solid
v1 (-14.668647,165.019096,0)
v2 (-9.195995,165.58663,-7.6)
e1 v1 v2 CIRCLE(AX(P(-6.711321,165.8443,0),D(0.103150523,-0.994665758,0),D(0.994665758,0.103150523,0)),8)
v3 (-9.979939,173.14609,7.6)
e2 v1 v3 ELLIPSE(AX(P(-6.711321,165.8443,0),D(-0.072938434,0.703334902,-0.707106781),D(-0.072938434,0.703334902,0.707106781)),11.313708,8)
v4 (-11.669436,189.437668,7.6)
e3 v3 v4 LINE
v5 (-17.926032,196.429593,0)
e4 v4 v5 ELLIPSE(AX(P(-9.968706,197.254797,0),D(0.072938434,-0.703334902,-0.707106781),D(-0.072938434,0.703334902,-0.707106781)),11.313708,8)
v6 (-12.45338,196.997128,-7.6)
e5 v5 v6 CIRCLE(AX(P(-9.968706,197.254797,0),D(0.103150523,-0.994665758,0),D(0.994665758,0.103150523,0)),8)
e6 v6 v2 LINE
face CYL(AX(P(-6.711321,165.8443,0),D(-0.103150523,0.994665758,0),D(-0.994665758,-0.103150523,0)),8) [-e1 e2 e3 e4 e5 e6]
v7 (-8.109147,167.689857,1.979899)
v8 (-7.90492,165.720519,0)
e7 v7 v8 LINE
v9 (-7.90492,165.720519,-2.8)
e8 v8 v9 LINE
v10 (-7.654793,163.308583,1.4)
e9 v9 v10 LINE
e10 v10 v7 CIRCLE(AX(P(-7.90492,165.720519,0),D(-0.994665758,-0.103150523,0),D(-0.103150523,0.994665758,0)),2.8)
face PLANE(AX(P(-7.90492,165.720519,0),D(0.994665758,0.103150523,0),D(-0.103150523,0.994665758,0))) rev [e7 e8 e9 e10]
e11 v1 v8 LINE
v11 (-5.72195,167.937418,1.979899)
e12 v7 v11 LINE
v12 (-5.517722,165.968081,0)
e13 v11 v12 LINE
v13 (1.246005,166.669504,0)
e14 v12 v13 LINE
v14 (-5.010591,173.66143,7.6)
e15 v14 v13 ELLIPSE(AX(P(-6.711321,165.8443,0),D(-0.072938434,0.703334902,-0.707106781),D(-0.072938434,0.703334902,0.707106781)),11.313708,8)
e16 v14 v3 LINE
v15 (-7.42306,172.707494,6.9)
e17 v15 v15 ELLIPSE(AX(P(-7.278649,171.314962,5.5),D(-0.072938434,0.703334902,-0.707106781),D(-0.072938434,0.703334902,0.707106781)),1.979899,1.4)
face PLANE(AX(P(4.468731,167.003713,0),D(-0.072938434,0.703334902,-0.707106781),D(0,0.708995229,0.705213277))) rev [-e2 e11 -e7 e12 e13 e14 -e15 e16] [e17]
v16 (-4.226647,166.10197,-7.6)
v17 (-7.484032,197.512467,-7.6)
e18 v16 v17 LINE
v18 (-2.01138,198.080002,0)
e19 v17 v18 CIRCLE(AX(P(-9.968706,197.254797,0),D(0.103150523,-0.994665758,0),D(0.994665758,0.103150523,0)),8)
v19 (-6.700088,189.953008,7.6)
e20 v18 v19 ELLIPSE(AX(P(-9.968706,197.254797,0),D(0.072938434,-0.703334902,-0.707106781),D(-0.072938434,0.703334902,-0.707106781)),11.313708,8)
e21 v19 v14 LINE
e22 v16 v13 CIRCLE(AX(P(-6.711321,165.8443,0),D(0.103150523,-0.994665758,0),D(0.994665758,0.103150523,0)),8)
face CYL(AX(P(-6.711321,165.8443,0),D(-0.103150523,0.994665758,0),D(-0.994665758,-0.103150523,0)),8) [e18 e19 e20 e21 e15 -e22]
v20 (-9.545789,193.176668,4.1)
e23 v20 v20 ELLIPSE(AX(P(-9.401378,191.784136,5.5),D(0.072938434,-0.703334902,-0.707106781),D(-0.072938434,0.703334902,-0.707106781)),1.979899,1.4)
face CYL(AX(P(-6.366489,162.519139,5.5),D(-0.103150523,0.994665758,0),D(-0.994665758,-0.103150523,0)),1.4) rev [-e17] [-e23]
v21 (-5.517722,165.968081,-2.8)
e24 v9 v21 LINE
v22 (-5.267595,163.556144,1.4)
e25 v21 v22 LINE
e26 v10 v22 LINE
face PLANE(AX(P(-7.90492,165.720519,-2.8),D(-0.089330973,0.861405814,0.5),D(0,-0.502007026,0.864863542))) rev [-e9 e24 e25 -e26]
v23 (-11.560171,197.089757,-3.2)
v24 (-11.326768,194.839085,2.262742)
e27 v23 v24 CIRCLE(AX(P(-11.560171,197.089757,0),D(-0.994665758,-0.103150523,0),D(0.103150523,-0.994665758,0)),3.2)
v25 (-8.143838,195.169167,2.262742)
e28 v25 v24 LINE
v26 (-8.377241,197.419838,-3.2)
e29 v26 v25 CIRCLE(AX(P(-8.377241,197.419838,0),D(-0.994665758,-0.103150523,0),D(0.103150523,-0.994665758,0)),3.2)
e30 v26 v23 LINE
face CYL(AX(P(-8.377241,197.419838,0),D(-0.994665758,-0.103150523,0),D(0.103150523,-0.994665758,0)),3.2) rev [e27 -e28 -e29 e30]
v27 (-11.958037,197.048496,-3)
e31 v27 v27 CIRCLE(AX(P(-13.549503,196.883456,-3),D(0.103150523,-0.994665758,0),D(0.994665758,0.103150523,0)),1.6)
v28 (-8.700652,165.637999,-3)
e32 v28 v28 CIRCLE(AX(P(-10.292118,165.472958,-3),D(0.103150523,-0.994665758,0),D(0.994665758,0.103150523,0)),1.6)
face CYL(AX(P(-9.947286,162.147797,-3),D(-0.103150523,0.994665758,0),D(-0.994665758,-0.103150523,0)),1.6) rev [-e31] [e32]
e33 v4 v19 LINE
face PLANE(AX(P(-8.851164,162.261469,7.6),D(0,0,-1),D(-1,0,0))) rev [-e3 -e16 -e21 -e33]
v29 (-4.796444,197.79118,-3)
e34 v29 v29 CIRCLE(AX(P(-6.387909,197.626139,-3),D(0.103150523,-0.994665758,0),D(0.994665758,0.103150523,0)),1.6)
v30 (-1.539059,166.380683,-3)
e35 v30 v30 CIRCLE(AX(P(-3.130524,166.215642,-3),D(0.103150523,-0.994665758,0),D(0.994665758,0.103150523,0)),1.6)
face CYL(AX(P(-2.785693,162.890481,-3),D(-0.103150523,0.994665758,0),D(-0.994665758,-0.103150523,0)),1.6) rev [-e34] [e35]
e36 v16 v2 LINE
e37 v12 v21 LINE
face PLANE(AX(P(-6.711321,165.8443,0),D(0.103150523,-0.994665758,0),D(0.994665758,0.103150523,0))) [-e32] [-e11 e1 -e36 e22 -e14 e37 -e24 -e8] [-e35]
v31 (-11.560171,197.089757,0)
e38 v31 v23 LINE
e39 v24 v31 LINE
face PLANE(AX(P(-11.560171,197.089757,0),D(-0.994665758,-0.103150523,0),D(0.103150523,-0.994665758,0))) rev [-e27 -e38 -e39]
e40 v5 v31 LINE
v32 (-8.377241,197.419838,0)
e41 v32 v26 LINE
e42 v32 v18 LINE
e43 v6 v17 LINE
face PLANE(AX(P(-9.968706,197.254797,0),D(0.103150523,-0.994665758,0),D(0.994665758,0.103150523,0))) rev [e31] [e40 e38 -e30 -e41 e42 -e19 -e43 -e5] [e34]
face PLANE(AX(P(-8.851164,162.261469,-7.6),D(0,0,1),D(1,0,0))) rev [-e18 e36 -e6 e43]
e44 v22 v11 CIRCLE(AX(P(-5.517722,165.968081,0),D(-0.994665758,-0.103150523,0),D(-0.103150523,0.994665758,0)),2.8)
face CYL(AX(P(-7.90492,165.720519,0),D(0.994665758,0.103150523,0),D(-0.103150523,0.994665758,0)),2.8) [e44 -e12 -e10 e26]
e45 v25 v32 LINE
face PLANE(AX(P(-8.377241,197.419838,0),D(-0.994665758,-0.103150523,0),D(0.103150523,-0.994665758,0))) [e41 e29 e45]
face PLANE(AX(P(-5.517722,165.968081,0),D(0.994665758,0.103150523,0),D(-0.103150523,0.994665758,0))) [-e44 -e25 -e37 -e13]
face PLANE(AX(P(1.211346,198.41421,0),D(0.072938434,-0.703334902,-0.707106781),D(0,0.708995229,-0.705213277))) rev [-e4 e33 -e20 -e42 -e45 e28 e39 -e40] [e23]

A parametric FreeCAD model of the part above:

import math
import FreeCAD as App
import Part
import Sketcher

V = App.Vector
Q = App.Units.Quantity

doc = App.newDocument("Part")
body = doc.addObject("PartDesign::Body", "Body")

sketch1 = doc.addObject("Sketcher::SketchObject", "Sketch")
body.addObject(sketch1)
sketch1.Placement = App.Placement(V(-20.344467, 196.178793, 0), App.Rotation(V(-0.994665758, -0.103150523, 0), V(0, 0, -1.000000001), V(0.103150523, -0.994665758, 0), "ZXY"))
sketch1.addGeometry(Part.Circle(V(-10, 0, 0), V(0, 0, 1), 8), False)
sketch1.addConstraint([
    Sketcher.Constraint("PointOnObject", 0, 3, -1),
    Sketcher.Constraint("Diameter", 0, Q("16 mm")),
    Sketcher.Constraint("DistanceX", 0, 3, -1, 1, Q("10.431405 mm")),
])
pad1 = doc.addObject("PartDesign::Pad", "Pad")
body.addObject(pad1)
pad1.Profile = sketch1
pad1.Length = 31.578947

sketch2 = doc.addObject("Sketcher::SketchObject", "Sketch001")
body.addObject(sketch2)
sketch2.Placement = App.Placement(V(10.375762, 1.076005, 0), App.Rotation(V(0.103150523, -0.994665758, 0), V(0, 0, 1.000000001), V(-0.994665758, -0.103150523, 0), "ZXY"))
sketch2.addGeometry([
    Part.LineSegment(V(-197, 0, 0), V(-189, 8, 0)),
    Part.LineSegment(V(-189, 8, 0), V(-197, 8, 0)),
    Part.LineSegment(V(-197, 8, 0), V(-197, 0, 0)),
    Part.LineSegment(V(-166, 8, 0), V(-174, 8, 0)),
    Part.LineSegment(V(-174, 8, 0), V(-166, 0, 0)),
    Part.LineSegment(V(-166, 0, 0), V(-166, 8, 0)),
], False)
sketch2.addConstraint([
    Sketcher.Constraint("Coincident", 0, 2, 1, 1),
    Sketcher.Constraint("Coincident", 1, 2, 2, 1),
    Sketcher.Constraint("Coincident", 2, 2, 0, 1),
    Sketcher.Constraint("Coincident", 3, 2, 4, 1),
    Sketcher.Constraint("Coincident", 4, 2, 5, 1),
    Sketcher.Constraint("Coincident", 5, 2, 3, 1),
    Sketcher.Constraint("Horizontal", 1),
    Sketcher.Constraint("Vertical", 2),
    Sketcher.Constraint("Horizontal", 3),
    Sketcher.Constraint("Vertical", 5),
    Sketcher.Constraint("PointOnObject", 2, 2, -1),
    Sketcher.Constraint("PointOnObject", 4, 2, -1),
    Sketcher.Constraint("Perpendicular", 0, 4),
    Sketcher.Constraint("Horizontal", 1, 2, 3, 2),
    Sketcher.Constraint("Equal", 1, 3),
    Sketcher.Constraint("DistanceX", 1, 2, 1, 1, Q("8 mm")),
    Sketcher.Constraint("DistanceX", 0, 2, -1, 1, Q("189.23087 mm")),
    Sketcher.Constraint("DistanceX", 3, 2, -1, 1, Q("173.651923 mm")),
])
pocket1 = doc.addObject("PartDesign::Pocket", "Pocket")
body.addObject(pocket1)
pocket1.Profile = sketch2
pocket1.Type = "ThroughAll"
pocket1.Midplane = True

sketch3 = doc.addObject("Sketcher::SketchObject", "Sketch002")
body.addObject(sketch3)
sketch3.Placement = App.Placement(V(10.375762, 1.076005, 0), App.Rotation(V(0.103150523, -0.994665758, 0), V(0, 0, 1.000000001), V(-0.994665758, -0.103150523, 0), "ZXY"))
sketch3.addGeometry([
    Part.LineSegment(V(-165.7, -2.8, 0), V(-163.2, 1.4, 0)),
    Part.ArcOfCircle(Part.Circle(V(-165.7, 0, 0), V(0, 0, 1), 2.8), math.radians(30), math.radians(135)),
    Part.LineSegment(V(-167.6, 2, 0), V(-165.7, 0, 0)),
    Part.LineSegment(V(-165.7, 0, 0), V(-165.7, -2.8, 0)),
], False)
sketch3.addConstraint([
    Sketcher.Constraint("Coincident", 0, 2, 1, 1),
    Sketcher.Constraint("Coincident", 1, 2, 2, 1),
    Sketcher.Constraint("Coincident", 2, 2, 3, 1),
    Sketcher.Constraint("Coincident", 3, 2, 0, 1),
    Sketcher.Constraint("Vertical", 3),
    Sketcher.Constraint("Coincident", 2, 2, 1, 3),
    Sketcher.Constraint("PointOnObject", 1, 3, -1),
    Sketcher.Constraint("Radius", 1, Q("2.8 mm")),
    Sketcher.Constraint("Angle", 0, Q("60 deg")),
    Sketcher.Constraint("Angle", 2, Q("-45 deg")),
    Sketcher.Constraint("DistanceY", 3, 2, 3, 1, Q("2.8 mm")),
    Sketcher.Constraint("DistanceX", 0, 2, -1, 1, Q("163.227051 mm")),
])
pad2 = doc.addObject("PartDesign::Pad", "Pad001")
body.addObject(pad2)
pad2.Profile = sketch3
pad2.Length = 2.4
pad2.Midplane = True

sketch4 = doc.addObject("Sketcher::SketchObject", "Sketch003")
body.addObject(sketch4)
sketch4.Placement = App.Placement(V(10.375762, 1.076005, 0), App.Rotation(V(0.103150523, -0.994665758, 0), V(0, 0, 1.000000001), V(-0.994665758, -0.103150523, 0), "ZXY"))
sketch4.addGeometry([
    Part.LineSegment(V(-195, 2.3, 0), V(-197.2, 0, 0)),
    Part.LineSegment(V(-197.2, 0, 0), V(-197.2, -3.2, 0)),
    Part.ArcOfCircle(Part.Circle(V(-197.2, 0, 0), V(0, 0, 1), 3.2), math.radians(-90), math.radians(45)),
], False)
sketch4.addConstraint([
    Sketcher.Constraint("Coincident", 0, 2, 1, 1),
    Sketcher.Constraint("Coincident", 1, 2, 2, 1),
    Sketcher.Constraint("Coincident", 2, 2, 0, 1),
    Sketcher.Constraint("Vertical", 1),
    Sketcher.Constraint("Coincident", 0, 2, 2, 3),
    Sketcher.Constraint("PointOnObject", 2, 3, -1),
    Sketcher.Constraint("Radius", 2, Q("3.2 mm")),
    Sketcher.Constraint("Angle", 0, Q("-135 deg")),
    Sketcher.Constraint("DistanceX", 2, 3, -1, 1, Q("197.23087 mm")),
])
pocket2 = doc.addObject("PartDesign::Pocket", "Pocket001")
body.addObject(pocket2)
pocket2.Profile = sketch4
pocket2.Length = 3.2
pocket2.Midplane = True

sketch5 = doc.addObject("Sketcher::SketchObject", "Sketch004")
body.addObject(sketch5)
sketch5.Placement = App.Placement(V(-20.344467, 196.178793, 0), App.Rotation(V(0.994665758, 0.103150523, 0), V(0, 0, -1.000000001), V(-0.103150523, 0.994665758, 0), "ZXY"))
sketch5.addGeometry([
    Part.Circle(V(10.4, -5.5, 0), V(0, 0, 1), 1.4),
    Part.Circle(V(6.8, 3, 0), V(0, 0, 1), 1.6),
    Part.Circle(V(14, 3, 0), V(0, 0, 1), 1.6),
], False)
sketch5.addConstraint([
    Sketcher.Constraint("Equal", 1, 2),
    Sketcher.Constraint("Horizontal", 1, 3, 2, 3),
    Sketcher.Constraint("Diameter", 0, Q("2.8 mm")),
    Sketcher.Constraint("Diameter", 1, Q("3.2 mm")),
    Sketcher.Constraint("DistanceY", -1, 1, 1, 3, Q("3 mm")),
    Sketcher.Constraint("DistanceY", 0, 3, -1, 1, Q("5.5 mm")),
    Sketcher.Constraint("DistanceX", 1, 3, 0, 3, Q("3.6 mm")),
    Sketcher.Constraint("DistanceX", 1, 3, 2, 3, Q("7.2 mm")),
    Sketcher.Constraint("DistanceX", -1, 1, 0, 3, Q("10.431405 mm")),
])
pocket3 = doc.addObject("PartDesign::Pocket", "Pocket002")
body.addObject(pocket3)
pocket3.Profile = sketch5
pocket3.Type = "ThroughAll"
pocket3.Midplane = True

sketch6 = doc.addObject("Sketcher::SketchObject", "Sketch005")
body.addObject(sketch6)
sketch6.Placement = App.Placement(V(-20.344467, 196.178793, 0), App.Rotation(V(0.994665758, 0.103150523, 0), V(0, 0, -1.000000001), V(-0.103150523, 0.994665758, 0), "ZXY"))
sketch6.addGeometry([
    Part.LineSegment(V(7.9, 7.6, 0), V(12.9, 7.6, 0)),
    Part.ArcOfCircle(Part.Circle(V(10.4, 0, 0), V(0, 0, 1), 8), math.radians(72), math.radians(108)),
    Part.LineSegment(V(12.9, -7.6, 0), V(7.9, -7.6, 0)),
    Part.ArcOfCircle(Part.Circle(V(10.4, 0, 0), V(0, 0, 1), 8), math.radians(-108), math.radians(-72)),
], False)
sketch6.addConstraint([
    Sketcher.Constraint("Coincident", 0, 1, 1, 2),
    Sketcher.Constraint("Coincident", 1, 1, 0, 2),
    Sketcher.Constraint("Coincident", 2, 1, 3, 2),
    Sketcher.Constraint("Coincident", 3, 1, 2, 2),
    Sketcher.Constraint("Horizontal", 0),
    Sketcher.Constraint("Horizontal", 2),
    Sketcher.Constraint("Coincident", 3, 3, 1, 3),
    Sketcher.Constraint("Equal", 1, 3),
    Sketcher.Constraint("Symmetric", 1, 1, 2, 1, -1),
    Sketcher.Constraint("Radius", 1, Q("8 mm")),
    Sketcher.Constraint("DistanceY", -1, 1, 0, 1, Q("7.6 mm")),
    Sketcher.Constraint("DistanceX", -1, 1, 1, 3, Q("10.431405 mm")),
])
pocket4 = doc.addObject("PartDesign::Pocket", "Pocket003")
body.addObject(pocket4)
pocket4.Profile = sketch6
pocket4.Type = "ThroughAll"

doc.recompute()
